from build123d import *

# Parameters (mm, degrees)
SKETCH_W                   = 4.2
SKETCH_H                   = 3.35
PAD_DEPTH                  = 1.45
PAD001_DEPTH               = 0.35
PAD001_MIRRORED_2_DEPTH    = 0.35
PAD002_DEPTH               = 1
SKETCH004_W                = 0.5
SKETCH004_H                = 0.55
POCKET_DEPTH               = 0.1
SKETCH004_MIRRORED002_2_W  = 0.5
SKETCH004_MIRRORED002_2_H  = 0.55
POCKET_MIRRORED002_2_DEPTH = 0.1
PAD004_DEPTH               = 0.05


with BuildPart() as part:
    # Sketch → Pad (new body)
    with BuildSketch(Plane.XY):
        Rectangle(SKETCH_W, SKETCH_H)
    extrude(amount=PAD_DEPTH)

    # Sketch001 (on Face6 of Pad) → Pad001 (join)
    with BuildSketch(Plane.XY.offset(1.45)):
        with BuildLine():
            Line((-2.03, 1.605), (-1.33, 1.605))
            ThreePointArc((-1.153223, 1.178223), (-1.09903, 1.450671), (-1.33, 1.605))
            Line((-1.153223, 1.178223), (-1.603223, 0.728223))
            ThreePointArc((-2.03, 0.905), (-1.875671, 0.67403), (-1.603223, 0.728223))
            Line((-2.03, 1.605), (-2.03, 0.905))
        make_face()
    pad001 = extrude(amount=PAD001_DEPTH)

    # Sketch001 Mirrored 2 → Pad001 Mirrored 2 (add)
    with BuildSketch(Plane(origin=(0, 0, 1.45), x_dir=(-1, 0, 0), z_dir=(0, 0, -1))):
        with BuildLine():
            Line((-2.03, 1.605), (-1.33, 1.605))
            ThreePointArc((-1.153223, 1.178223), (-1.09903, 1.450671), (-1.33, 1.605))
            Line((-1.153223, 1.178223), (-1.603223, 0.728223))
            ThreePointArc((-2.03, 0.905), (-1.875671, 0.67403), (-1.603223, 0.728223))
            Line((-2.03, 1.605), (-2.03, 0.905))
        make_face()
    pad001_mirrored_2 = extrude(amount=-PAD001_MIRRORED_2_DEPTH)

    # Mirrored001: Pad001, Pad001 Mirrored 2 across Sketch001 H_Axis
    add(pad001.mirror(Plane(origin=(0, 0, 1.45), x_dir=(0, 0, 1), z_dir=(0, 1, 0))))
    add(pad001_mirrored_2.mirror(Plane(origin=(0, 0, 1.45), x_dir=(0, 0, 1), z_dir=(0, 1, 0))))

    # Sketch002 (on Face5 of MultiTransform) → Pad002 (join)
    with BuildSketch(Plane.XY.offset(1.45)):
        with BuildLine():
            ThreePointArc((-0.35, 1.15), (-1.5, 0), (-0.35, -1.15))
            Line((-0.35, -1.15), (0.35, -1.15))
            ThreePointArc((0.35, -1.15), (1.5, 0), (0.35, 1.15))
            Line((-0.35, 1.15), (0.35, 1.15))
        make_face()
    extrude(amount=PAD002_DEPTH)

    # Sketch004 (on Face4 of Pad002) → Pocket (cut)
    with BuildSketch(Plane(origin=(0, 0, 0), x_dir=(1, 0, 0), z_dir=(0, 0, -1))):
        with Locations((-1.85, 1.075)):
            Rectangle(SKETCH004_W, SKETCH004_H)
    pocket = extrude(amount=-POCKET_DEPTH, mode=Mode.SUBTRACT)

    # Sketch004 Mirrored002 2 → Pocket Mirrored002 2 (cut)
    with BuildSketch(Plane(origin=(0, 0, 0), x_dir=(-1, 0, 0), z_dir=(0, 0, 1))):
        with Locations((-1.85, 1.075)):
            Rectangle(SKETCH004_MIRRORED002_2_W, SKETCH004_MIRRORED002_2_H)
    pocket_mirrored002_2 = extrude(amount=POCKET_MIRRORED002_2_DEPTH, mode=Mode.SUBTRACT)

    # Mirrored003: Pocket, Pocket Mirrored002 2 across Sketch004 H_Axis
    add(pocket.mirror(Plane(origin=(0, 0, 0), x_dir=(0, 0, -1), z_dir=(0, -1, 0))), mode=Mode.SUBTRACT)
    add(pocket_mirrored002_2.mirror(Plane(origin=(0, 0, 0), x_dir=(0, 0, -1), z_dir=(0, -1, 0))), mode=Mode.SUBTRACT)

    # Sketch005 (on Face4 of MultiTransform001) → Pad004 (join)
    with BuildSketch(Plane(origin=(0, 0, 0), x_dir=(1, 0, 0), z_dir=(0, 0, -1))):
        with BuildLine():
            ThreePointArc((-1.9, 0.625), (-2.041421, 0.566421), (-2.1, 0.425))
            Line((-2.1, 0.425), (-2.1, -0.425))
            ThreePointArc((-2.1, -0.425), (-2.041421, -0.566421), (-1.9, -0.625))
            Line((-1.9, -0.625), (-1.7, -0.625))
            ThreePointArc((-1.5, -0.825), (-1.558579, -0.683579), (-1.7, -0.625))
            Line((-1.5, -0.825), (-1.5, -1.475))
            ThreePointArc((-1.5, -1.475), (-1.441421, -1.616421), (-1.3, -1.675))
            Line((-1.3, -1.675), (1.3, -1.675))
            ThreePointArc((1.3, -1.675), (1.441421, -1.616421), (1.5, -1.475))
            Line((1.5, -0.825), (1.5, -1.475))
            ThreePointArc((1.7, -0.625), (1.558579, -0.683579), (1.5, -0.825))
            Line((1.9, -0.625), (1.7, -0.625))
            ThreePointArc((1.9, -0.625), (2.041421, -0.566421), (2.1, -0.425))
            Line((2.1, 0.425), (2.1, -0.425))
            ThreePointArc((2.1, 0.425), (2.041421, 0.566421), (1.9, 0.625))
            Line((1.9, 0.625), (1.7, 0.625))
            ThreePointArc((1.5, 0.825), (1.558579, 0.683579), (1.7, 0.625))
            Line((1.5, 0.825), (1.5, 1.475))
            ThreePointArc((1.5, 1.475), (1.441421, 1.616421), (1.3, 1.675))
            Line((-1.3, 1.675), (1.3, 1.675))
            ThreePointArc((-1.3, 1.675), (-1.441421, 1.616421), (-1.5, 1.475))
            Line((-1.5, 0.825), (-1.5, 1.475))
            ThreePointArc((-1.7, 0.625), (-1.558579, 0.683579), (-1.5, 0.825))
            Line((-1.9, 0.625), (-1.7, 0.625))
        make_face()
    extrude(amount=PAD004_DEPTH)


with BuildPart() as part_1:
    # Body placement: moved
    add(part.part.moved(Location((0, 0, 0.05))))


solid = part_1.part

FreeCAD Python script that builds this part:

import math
import FreeCAD as App
import Part
import Sketcher


def add_polygon(sketch, points):
    """Adds a closed chain of lines whose ends are joined by coincident constraints."""
    first, n = sketch.GeometryCount, len(points)
    for a, b in zip(points, points[1:] + points[:1]):
        sketch.addGeometry(Part.LineSegment(App.Vector(*a, 0), App.Vector(*b, 0)), False)
    for i in range(n):
        sketch.addConstraint(Sketcher.Constraint("Coincident", first + i, 2, first + (i + 1) % n, 1))

doc = App.newDocument("Part")
body = doc.addObject("PartDesign::Body", "Body")

# Sketch on XY plane
sketch1 = body.newObject("Sketcher::SketchObject", "Sketch")
sketch1.AttachmentSupport = (doc.getObject("XY_Plane"), [""])
sketch1.MapMode = "FlatFace"
add_polygon(sketch1, [(-2.1, 1.7), (-2.1, -1.7), (2.1, -1.7), (2.1, 1.7)])  # lines 0-3
sketch1.addConstraint([
    Sketcher.Constraint("Vertical", 0),
    Sketcher.Constraint("Horizontal", 1),
    Sketcher.Constraint("Vertical", 2),
    Sketcher.Constraint("Horizontal", 3),
    Sketcher.Constraint("Symmetric", 0, 2, 2, 2, -1, 1),
    Sketcher.Constraint("DistanceX", 1, 1, 1, 2, 4.2),
    Sketcher.Constraint("DistanceY", 0, 2, 0, 1, 3.35),
])
pad1 = body.newObject("PartDesign::Pad", "Pad")
pad1.Profile = sketch1
pad1.Length = 1.45

# Sketch on XY plane
sketch2 = body.newObject("Sketcher::SketchObject", "Sketch001")
sketch2.AttachmentSupport = (doc.getObject("XY_Plane"), [""])
sketch2.MapMode = "FlatFace"
sketch2.AttachmentOffset = App.Placement(App.Vector(0, 0, 1.45), App.Rotation())
sketch2.addGeometry([
    Part.LineSegment(App.Vector(-1.33, 1.6, 0), App.Vector(-2.03, 1.6, 0)),  # 0
    Part.LineSegment(App.Vector(-2.03, 1.6, 0), App.Vector(-2.03, 0.91, 0)),  # 1
    Part.ArcOfCircle(Part.Circle(App.Vector(-1.78, 0.9, 0), App.Vector(0, 0, 1), 0.25), math.radians(180), math.radians(315)),  # 2
    Part.LineSegment(App.Vector(-1.6, 0.73, 0), App.Vector(-1.15, 1.18, 0)),  # 3
    Part.ArcOfCircle(Part.Circle(App.Vector(-1.33, 1.35, 0), App.Vector(0, 0, 1), 0.25), math.radians(-45), math.radians(90)),  # 4
], False)
sketch2.addConstraint([
    Sketcher.Constraint("Coincident", 0, 2, 1, 1),
    Sketcher.Constraint("Tangent", 1, 2, 2, 1),
    Sketcher.Constraint("Tangent", 2, 2, 3, 1),
    Sketcher.Constraint("Tangent", 3, 2, 4, 1),
    Sketcher.Constraint("Tangent", 4, 2, 0, 1),
    Sketcher.Constraint("Horizontal", 0),
    Sketcher.Constraint("Vertical", 1),
    Sketcher.Constraint("Equal", 2, 4),
    Sketcher.Constraint("Equal", 0, 1),
    Sketcher.Constraint("Radius", 2, 0.25),
    Sketcher.Constraint("DistanceX", 0, 2, 0, 1, 0.7),
    Sketcher.Constraint("DistanceX", 2, 3, -1, 1, 1.78),
    Sketcher.Constraint("DistanceY", -1, 1, 2, 3, 0.905),
])
pad2 = body.newObject("PartDesign::Pad", "Pad001")
pad2.Profile = sketch2
pad2.Length = 0.35

# Sketch on XY plane
sketch3 = body.newObject("Sketcher::SketchObject", "Sketch002")
sketch3.AttachmentSupport = (doc.getObject("XY_Plane"), [""])
sketch3.MapMode = "FlatFace"
sketch3.AttachmentOffset = App.Placement(App.Vector(0, 0, 1.45), App.Rotation())
sketch3.addGeometry([
    Part.LineSegment(App.Vector(1.33, 1.6, 0), App.Vector(2.03, 1.6, 0)),  # 0
    Part.LineSegment(App.Vector(2.03, 1.6, 0), App.Vector(2.03, 0.91, 0)),  # 1
    Part.ArcOfCircle(Part.Circle(App.Vector(1.78, 0.9, 0), App.Vector(0, 0, 1), 0.25), math.radians(-135), math.radians(0)),  # 2
    Part.LineSegment(App.Vector(1.6, 0.73, 0), App.Vector(1.15, 1.18, 0)),  # 3
    Part.ArcOfCircle(Part.Circle(App.Vector(1.33, 1.35, 0), App.Vector(0, 0, 1), 0.25), math.radians(90), math.radians(225)),  # 4
], False)
sketch3.addConstraint([
    Sketcher.Constraint("Coincident", 0, 2, 1, 1),
    Sketcher.Constraint("Tangent", 1, 2, 2, 2),
    Sketcher.Constraint("Tangent", 2, 1, 3, 1),
    Sketcher.Constraint("Tangent", 3, 2, 4, 2),
    Sketcher.Constraint("Tangent", 4, 1, 0, 1),
    Sketcher.Constraint("Horizontal", 0),
    Sketcher.Constraint("Vertical", 1),
    Sketcher.Constraint("Equal", 2, 4),
    Sketcher.Constraint("Equal", 0, 1),
    Sketcher.Constraint("Radius", 2, 0.25),
    Sketcher.Constraint("DistanceX", 0, 1, 0, 2, 0.7),
    Sketcher.Constraint("DistanceX", -1, 1, 2, 3, 1.78),
    Sketcher.Constraint("DistanceY", -1, 1, 2, 3, 0.905),
])
pad3 = body.newObject("PartDesign::Pad", "Pad002")
pad3.Profile = sketch3
pad3.Length = 0.35
doc.recompute()

mirrored = body.newObject("PartDesign::Mirrored", "Mirrored")
mirrored.Originals = [pad2, pad3]
mirrored.MirrorPlane = (doc.getObject("XZ_Plane"), [""])
body.Tip = mirrored

# Sketch on XY plane
sketch4 = body.newObject("Sketcher::SketchObject", "Sketch003")
sketch4.AttachmentSupport = (doc.getObject("XY_Plane"), [""])
sketch4.MapMode = "FlatFace"
sketch4.AttachmentOffset = App.Placement(App.Vector(0, 0, 1.45), App.Rotation())
sketch4.addGeometry([
    Part.ArcOfCircle(Part.Circle(App.Vector(-0.3, 0, 0), App.Vector(0, 0, 1), 1.1), math.radians(90), math.radians(270)),
    Part.LineSegment(App.Vector(-0.3, -1.1, 0), App.Vector(0.3, -1.1, 0)),
    Part.ArcOfCircle(Part.Circle(App.Vector(0.3, 0, 0), App.Vector(0, 0, 1), 1.1), math.radians(-90), math.radians(90)),
    Part.LineSegment(App.Vector(0.3, 1.1, 0), App.Vector(-0.3, 1.1, 0)),
], False)
sketch4.addConstraint([
    Sketcher.Constraint("Tangent", 0, 2, 1, 1),
    Sketcher.Constraint("Tangent", 1, 2, 2, 1),
    Sketcher.Constraint("Tangent", 2, 2, 3, 1),
    Sketcher.Constraint("Tangent", 3, 2, 0, 1),
    Sketcher.Constraint("Horizontal", 1),
    Sketcher.Constraint("Horizontal", 3),
    Sketcher.Constraint("Symmetric", 0, 3, 2, 3, -1, 1),
    Sketcher.Constraint("Radius", 0, 1.15),
    Sketcher.Constraint("DistanceX", 1, 1, 1, 2, 0.7),
])
pad4 = body.newObject("PartDesign::Pad", "Pad003")
pad4.Profile = sketch4
pad4.Length = 1

# Sketch on XY plane
sketch5 = body.newObject("Sketcher::SketchObject", "Sketch004")
sketch5.AttachmentSupport = (doc.getObject("XY_Plane"), [""])
sketch5.MapMode = "FlatFace"
add_polygon(sketch5, [(-2.1, -1.4), (-2.1, -0.8), (-1.6, -0.8), (-1.6, -1.4)])  # lines 0-3
sketch5.addConstraint([
    Sketcher.Constraint("Vertical", 0),
    Sketcher.Constraint("Horizontal", 1),
    Sketcher.Constraint("Vertical", 2),
    Sketcher.Constraint("Horizontal", 3),
    Sketcher.Constraint("DistanceX", 1, 1, 1, 2, 0.5),
    Sketcher.Constraint("DistanceY", 0, 1, 0, 2, 0.55),
    Sketcher.Constraint("DistanceX", 0, 2, -1, 1, 2.1),
    Sketcher.Constraint("DistanceY", 0, 2, -1, 1, 0.8),
])
pocket1 = body.newObject("PartDesign::Pocket", "Pocket")
pocket1.Profile = sketch5
pocket1.Length = 0.1
pocket1.Reversed = True

# Sketch on XY plane
sketch6 = body.newObject("Sketcher::SketchObject", "Sketch005")
sketch6.AttachmentSupport = (doc.getObject("XY_Plane"), [""])
sketch6.MapMode = "FlatFace"
add_polygon(sketch6, [(2.1, -1.4), (2.1, -0.8), (1.6, -0.8), (1.6, -1.4)])  # lines 0-3
sketch6.addConstraint([
    Sketcher.Constraint("Vertical", 0),
    Sketcher.Constraint("Horizontal", 1),
    Sketcher.Constraint("Vertical", 2),
    Sketcher.Constraint("Horizontal", 3),
    Sketcher.Constraint("DistanceX", 1, 2, 1, 1, 0.5),
    Sketcher.Constraint("DistanceY", 0, 1, 0, 2, 0.55),
    Sketcher.Constraint("DistanceX", -1, 1, 0, 2, 2.1),
    Sketcher.Constraint("DistanceY", 0, 2, -1, 1, 0.8),
])
pocket2 = body.newObject("PartDesign::Pocket", "Pocket001")
pocket2.Profile = sketch6
pocket2.Length = 0.1
pocket2.Reversed = True
doc.recompute()

mirrored2 = body.newObject("PartDesign::Mirrored", "Mirrored001")
mirrored2.Originals = [pocket1, pocket2]
mirrored2.MirrorPlane = (doc.getObject("XZ_Plane"), [""])
body.Tip = mirrored2

# Sketch on XY plane
sketch7 = body.newObject("Sketcher::SketchObject", "Sketch006")
sketch7.AttachmentSupport = (doc.getObject("XY_Plane"), [""])
sketch7.MapMode = "FlatFace"
sketch7.addGeometry([
    Part.ArcOfCircle(Part.Circle(App.Vector(-1.9, -0.42, 0), App.Vector(0, 0, 1), 0.2), math.radians(-180), math.radians(-90)),  # 0
    Part.LineSegment(App.Vector(-2.1, -0.42, 0), App.Vector(-2.1, 0.42, 0)),  # 1
    Part.ArcOfCircle(Part.Circle(App.Vector(-1.9, 0.42, 0), App.Vector(0, 0, 1), 0.2), math.radians(90), math.radians(180)),  # 2
    Part.LineSegment(App.Vector(-1.9, 0.62, 0), App.Vector(-1.7, 0.62, 0)),  # 3
    Part.ArcOfCircle(Part.Circle(App.Vector(-1.7, 0.83, 0), App.Vector(0, 0, 1), 0.2), math.radians(-90), math.radians(0)),  # 4
    Part.LineSegment(App.Vector(-1.5, 0.82, 0), App.Vector(-1.5, 1.48, 0)),  # 5
    Part.ArcOfCircle(Part.Circle(App.Vector(-1.3, 1.47, 0), App.Vector(0, 0, 1), 0.2), math.radians(90), math.radians(180)),  # 6
    Part.LineSegment(App.Vector(-1.3, 1.68, 0), App.Vector(1.3, 1.68, 0)),  # 7
    Part.ArcOfCircle(Part.Circle(App.Vector(1.3, 1.47, 0), App.Vector(0, 0, 1), 0.2), math.radians(0), math.radians(90)),  # 8
    Part.LineSegment(App.Vector(1.5, 1.48, 0), App.Vector(1.5, 0.82, 0)),  # 9
    Part.ArcOfCircle(Part.Circle(App.Vector(1.7, 0.83, 0), App.Vector(0, 0, 1), 0.2), math.radians(-180), math.radians(-90)),  # 10
    Part.LineSegment(App.Vector(1.7, 0.62, 0), App.Vector(1.9, 0.62, 0)),  # 11
    Part.ArcOfCircle(Part.Circle(App.Vector(1.9, 0.42, 0), App.Vector(0, 0, 1), 0.2), math.radians(0), math.radians(90)),  # 12
    Part.LineSegment(App.Vector(2.1, 0.42, 0), App.Vector(2.1, -0.42, 0)),  # 13
    Part.ArcOfCircle(Part.Circle(App.Vector(1.9, -0.42, 0), App.Vector(0, 0, 1), 0.2), math.radians(-90), math.radians(0)),  # 14
    Part.LineSegment(App.Vector(1.9, -0.62, 0), App.Vector(1.7, -0.62, 0)),  # 15
    Part.ArcOfCircle(Part.Circle(App.Vector(1.7, -0.83, 0), App.Vector(0, 0, 1), 0.2), math.radians(90), math.radians(180)),  # 16
    Part.LineSegment(App.Vector(1.5, -0.82, 0), App.Vector(1.5, -1.48, 0)),  # 17
    Part.ArcOfCircle(Part.Circle(App.Vector(1.3, -1.47, 0), App.Vector(0, 0, 1), 0.2), math.radians(-90), math.radians(0)),  # 18
    Part.LineSegment(App.Vector(1.3, -1.68, 0), App.Vector(-1.3, -1.68, 0)),  # 19
    Part.ArcOfCircle(Part.Circle(App.Vector(-1.3, -1.47, 0), App.Vector(0, 0, 1), 0.2), math.radians(-180), math.radians(-90)),  # 20
    Part.LineSegment(App.Vector(-1.5, -1.48, 0), App.Vector(-1.5, -0.82, 0)),  # 21
    Part.ArcOfCircle(Part.Circle(App.Vector(-1.7, -0.83, 0), App.Vector(0, 0, 1), 0.2), math.radians(0), math.radians(90)),  # 22
    Part.LineSegment(App.Vector(-1.7, -0.62, 0), App.Vector(-1.9, -0.62, 0)),  # 23
], False)
sketch7.addConstraint([
    Sketcher.Constraint("Coincident", 0, 1, 1, 1),
    Sketcher.Constraint("Coincident", 1, 2, 2, 2),
    Sketcher.Constraint("Coincident", 2, 1, 3, 1),
    Sketcher.Constraint("Coincident", 3, 2, 4, 1),
    Sketcher.Constraint("Coincident", 4, 2, 5, 1),
    Sketcher.Constraint("Coincident", 5, 2, 6, 2),
    Sketcher.Constraint("Coincident", 6, 1, 7, 1),
    Sketcher.Constraint("Coincident", 7, 2, 8, 2),
    Sketcher.Constraint("Coincident", 8, 1, 9, 1),
    Sketcher.Constraint("Coincident", 9, 2, 10, 1),
    Sketcher.Constraint("Coincident", 10, 2, 11, 1),
    Sketcher.Constraint("Coincident", 11, 2, 12, 2),
    Sketcher.Constraint("Coincident", 12, 1, 13, 1),
    Sketcher.Constraint("Coincident", 13, 2, 14, 2),
    Sketcher.Constraint("Coincident", 14, 1, 15, 1),
    Sketcher.Constraint("Coincident", 15, 2, 16, 1),
    Sketcher.Constraint("Coincident", 16, 2, 17, 1),
    Sketcher.Constraint("Coincident", 17, 2, 18, 2),
    Sketcher.Constraint("Coincident", 18, 1, 19, 1),
    Sketcher.Constraint("Coincident", 19, 2, 20, 2),
    Sketcher.Constraint("Coincident", 20, 1, 21, 1),
    Sketcher.Constraint("Coincident", 21, 2, 22, 1),
    Sketcher.Constraint("Coincident", 22, 2, 23, 1),
    Sketcher.Constraint("Coincident", 23, 2, 0, 2),
    Sketcher.Constraint("Vertical", 1),
    Sketcher.Constraint("Horizontal", 3),
    Sketcher.Constraint("Vertical", 5),
    Sketcher.Constraint("Horizontal", 7),
    Sketcher.Constraint("Vertical", 9),
    Sketcher.Constraint("Horizontal", 11),
    Sketcher.Constraint("Vertical", 13),
    Sketcher.Constraint("Horizontal", 15),
    Sketcher.Constraint("Vertical", 17),
    Sketcher.Constraint("Horizontal", 19),
    Sketcher.Constraint("Vertical", 21),
    Sketcher.Constraint("Horizontal", 23),
    Sketcher.Constraint("Equal", 0, 2),
    Sketcher.Constraint("Equal", 2, 4),
    Sketcher.Constraint("Equal", 4, 6),
    Sketcher.Constraint("Equal", 6, 8),
    Sketcher.Constraint("Equal", 8, 10),
    Sketcher.Constraint("Equal", 10, 12),
    Sketcher.Constraint("Equal", 12, 14),
    Sketcher.Constraint("Equal", 14, 16),
    Sketcher.Constraint("Equal", 16, 18),
    Sketcher.Constraint("Equal", 18, 20),
    Sketcher.Constraint("Equal", 20, 22),
    Sketcher.Constraint("Symmetric", 0, 3, 12, 3, -1, 1),
    Sketcher.Constraint("Symmetric", 4, 3, 16, 3, -1, 1),
    Sketcher.Constraint("Symmetric", 8, 3, 20, 3, -1, 1),
    Sketcher.Constraint("Symmetric", 4, 3, 10, 3, -2),
    Sketcher.Constraint("Horizontal", 14, 3, 0, 1),
    Sketcher.Constraint("Horizontal", 12, 3, 1, 2),
    Sketcher.Constraint("Horizontal", 10, 3, 4, 2),
    Sketcher.Constraint("Horizontal", 8, 3, 5, 2),
    Sketcher.Constraint("Horizontal", 5, 2, 8, 1),
    Sketcher.Constraint("Horizontal", 4, 2, 9, 2),
    Sketcher.Constraint("Horizontal", 1, 2, 12, 1),
    Sketcher.Constraint("Horizontal", 0, 1, 13, 2),
    Sketcher.Constraint("Horizontal", 22, 3, 16, 2),
    Sketcher.Constraint("Horizontal", 20, 3, 17, 2),
    Sketcher.Constraint("Horizontal", 17, 2, 20, 1),
    Sketcher.Constraint("Horizontal", 16, 2, 21, 2),
    Sketcher.Constraint("Vertical", 0, 3, 2, 1),
    Sketcher.Constraint("Vertical", 22, 3, 3, 2),
    Sketcher.Constraint("Vertical", 20, 3, 6, 1),
    Sketcher.Constraint("Vertical", 18, 3, 7, 2),
    Sketcher.Constraint("Vertical", 16, 3, 10, 2),
    Sketcher.Constraint("Vertical", 14, 3, 11, 2),
    Sketcher.Constraint("Vertical", 11, 2, 14, 1),
    Sketcher.Constraint("Vertical", 10, 2, 15, 2),
    Sketcher.Constraint("Vertical", 7, 2, 18, 1),
    Sketcher.Constraint("Vertical", 6, 1, 19, 2),
    Sketcher.Constraint("Vertical", 3, 2, 22, 2),
    Sketcher.Constraint("Vertical", 2, 1, 23, 2),
    Sketcher.Constraint("Radius", 0, 0.200001),
    Sketcher.Constraint("DistanceX", 3, 1, 3, 2, 0.2),
    Sketcher.Constraint("DistanceX", 7, 1, 7, 2, 2.6),
    Sketcher.Constraint("DistanceY", 1, 1, 1, 2, 0.85),
    Sketcher.Constraint("DistanceY", 5, 1, 5, 2, 0.65),
])
pad5 = body.newObject("PartDesign::Pad", "Pad004")
pad5.Profile = sketch7
pad5.Length = 0.05
pad5.Reversed = True
body2 = doc.addObject("PartDesign::Body", "Body001")
doc.recompute()

body.Placement = App.Placement(App.Vector(0, 0, 0.05), App.Rotation(App.Vector(0, 0, 1), 0))
boolean = body2.newObject("PartDesign::Boolean", "Boolean")
boolean.Type = "Fuse"
boolean.addObjects([body])

doc.recompute()
